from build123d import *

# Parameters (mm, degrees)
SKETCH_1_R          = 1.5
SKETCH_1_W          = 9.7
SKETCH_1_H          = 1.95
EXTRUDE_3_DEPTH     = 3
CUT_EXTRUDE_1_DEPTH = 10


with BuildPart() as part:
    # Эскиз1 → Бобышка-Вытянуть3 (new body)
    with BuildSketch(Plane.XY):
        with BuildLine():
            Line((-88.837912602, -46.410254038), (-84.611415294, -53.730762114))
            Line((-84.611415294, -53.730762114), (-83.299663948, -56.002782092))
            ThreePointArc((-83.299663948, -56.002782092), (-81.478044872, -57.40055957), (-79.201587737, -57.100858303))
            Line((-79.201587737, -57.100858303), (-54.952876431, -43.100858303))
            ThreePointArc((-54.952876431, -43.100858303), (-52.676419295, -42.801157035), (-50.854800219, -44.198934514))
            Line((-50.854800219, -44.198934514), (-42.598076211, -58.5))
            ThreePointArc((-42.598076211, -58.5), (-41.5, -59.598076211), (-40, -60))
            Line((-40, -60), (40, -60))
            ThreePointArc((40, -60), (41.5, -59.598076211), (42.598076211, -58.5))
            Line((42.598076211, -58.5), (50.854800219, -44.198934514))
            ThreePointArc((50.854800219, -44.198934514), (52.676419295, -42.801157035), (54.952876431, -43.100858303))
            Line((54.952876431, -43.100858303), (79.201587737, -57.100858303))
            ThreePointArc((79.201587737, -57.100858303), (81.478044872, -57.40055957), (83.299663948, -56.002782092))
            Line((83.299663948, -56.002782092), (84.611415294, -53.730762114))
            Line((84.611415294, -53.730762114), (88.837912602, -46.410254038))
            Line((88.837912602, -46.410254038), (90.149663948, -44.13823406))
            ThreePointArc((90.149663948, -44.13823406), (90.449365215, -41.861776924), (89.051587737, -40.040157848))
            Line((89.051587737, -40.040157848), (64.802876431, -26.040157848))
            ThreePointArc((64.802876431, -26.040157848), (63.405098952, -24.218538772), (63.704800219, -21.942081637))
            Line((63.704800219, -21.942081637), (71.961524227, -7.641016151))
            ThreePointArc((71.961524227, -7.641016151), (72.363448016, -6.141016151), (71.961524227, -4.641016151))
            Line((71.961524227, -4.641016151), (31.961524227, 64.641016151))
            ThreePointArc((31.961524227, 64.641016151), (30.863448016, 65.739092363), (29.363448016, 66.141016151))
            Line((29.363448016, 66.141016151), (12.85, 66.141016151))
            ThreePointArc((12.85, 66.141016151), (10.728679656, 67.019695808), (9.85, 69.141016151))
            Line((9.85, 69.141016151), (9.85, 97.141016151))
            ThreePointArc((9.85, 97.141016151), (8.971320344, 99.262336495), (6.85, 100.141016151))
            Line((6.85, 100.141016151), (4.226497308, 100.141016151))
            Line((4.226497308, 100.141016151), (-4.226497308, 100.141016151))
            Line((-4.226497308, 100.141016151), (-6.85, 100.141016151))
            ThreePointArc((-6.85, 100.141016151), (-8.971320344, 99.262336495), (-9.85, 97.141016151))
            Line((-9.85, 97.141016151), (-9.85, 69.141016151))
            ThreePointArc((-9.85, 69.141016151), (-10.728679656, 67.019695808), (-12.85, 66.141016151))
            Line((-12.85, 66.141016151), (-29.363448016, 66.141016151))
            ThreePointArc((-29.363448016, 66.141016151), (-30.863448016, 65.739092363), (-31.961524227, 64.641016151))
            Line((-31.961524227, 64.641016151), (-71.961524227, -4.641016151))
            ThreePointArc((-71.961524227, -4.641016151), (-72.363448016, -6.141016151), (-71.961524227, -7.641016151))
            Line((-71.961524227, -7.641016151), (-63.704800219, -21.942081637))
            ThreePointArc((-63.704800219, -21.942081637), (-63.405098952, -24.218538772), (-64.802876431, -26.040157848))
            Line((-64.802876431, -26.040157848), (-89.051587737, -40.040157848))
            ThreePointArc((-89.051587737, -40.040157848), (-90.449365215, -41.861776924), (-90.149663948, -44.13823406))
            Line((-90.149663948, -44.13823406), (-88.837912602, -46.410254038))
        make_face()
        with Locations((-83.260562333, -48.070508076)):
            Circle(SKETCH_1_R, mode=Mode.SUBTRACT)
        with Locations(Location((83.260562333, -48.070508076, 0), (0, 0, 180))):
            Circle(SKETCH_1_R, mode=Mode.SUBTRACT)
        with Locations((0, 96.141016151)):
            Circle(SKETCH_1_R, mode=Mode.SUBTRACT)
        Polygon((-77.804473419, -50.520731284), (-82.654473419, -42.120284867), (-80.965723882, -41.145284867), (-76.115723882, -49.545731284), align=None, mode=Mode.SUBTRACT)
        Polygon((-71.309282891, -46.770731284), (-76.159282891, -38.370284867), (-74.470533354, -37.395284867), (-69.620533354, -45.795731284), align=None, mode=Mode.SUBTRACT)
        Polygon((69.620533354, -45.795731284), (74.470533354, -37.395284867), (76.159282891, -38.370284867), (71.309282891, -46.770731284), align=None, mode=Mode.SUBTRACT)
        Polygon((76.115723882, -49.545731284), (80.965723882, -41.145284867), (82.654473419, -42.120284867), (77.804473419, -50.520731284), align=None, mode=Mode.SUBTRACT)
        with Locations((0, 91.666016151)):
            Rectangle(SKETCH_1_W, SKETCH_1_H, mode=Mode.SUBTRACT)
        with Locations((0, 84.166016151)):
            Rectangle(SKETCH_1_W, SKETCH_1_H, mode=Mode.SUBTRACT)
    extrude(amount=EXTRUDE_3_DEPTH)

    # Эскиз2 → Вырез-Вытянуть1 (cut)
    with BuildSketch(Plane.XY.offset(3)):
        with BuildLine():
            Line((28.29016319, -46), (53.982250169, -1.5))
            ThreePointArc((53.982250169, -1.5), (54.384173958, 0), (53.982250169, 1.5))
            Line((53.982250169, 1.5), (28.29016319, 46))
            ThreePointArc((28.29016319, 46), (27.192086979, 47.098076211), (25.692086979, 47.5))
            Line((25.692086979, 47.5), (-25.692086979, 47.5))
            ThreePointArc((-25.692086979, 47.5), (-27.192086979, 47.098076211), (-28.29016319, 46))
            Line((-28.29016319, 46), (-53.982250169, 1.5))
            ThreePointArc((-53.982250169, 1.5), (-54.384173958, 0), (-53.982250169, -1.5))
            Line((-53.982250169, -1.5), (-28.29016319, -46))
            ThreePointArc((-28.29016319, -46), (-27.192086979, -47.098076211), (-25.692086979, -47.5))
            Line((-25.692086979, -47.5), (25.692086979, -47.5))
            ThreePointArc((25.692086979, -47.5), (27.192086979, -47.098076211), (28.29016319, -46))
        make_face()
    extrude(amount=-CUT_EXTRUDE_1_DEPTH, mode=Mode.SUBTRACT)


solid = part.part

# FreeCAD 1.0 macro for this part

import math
import FreeCAD as App
import Part
import Sketcher
from FreeCAD import Vector
Q = App.Units.Quantity

doc = App.newDocument("Part")
params = doc.addObject("Spreadsheet::Sheet", "Params")
for row, (alias, value) in enumerate([
    ("sketch1_diameter", "3 mm"),
    ("sketch1_radius", "3 mm"),
    ("sketch1_width", "80 mm"),
    ("sketch1_height", "28 mm"),
    ("sketch1_length", "28 mm"),
    ("pad1_length", "3 mm"),
    ("sketch2_radius", "3 mm"),
    ("pocket1_length", "10 mm"),
], start=1):
    params.set(f"A{row}", alias)
    params.set(f"B{row}", "=" + value)
    params.setAlias(f"B{row}", alias)

body = doc.addObject("PartDesign::Body", "Body")

# Sketch on XY plane
sketch1 = body.newObject("Sketcher::SketchObject", "Sketch")
sketch1.AttachmentSupport = (doc.getObject("XY_Plane"), [""])
sketch1.MapMode = "FlatFace"
sketch1.addGeometry([
    Part.LineSegment(Vector(-88.8, -46.4, 0), Vector(-84.6, -53.7, 0)),  # 0
    Part.LineSegment(Vector(-84.6, -53.7, 0), Vector(-83.3, -56, 0)),  # 1
    Part.ArcOfCircle(Part.Circle(Vector(-80.7, -54.5, 0), Vector(0, 0, 1), 3), math.radians(-150), math.radians(-60)),  # 2
    Part.LineSegment(Vector(-79.2, -57.1, 0), Vector(-55, -43.1, 0)),  # 3
    Part.ArcOfCircle(Part.Circle(Vector(-53.5, -45.7, 0), Vector(0, 0, 1), 3), math.radians(30), math.radians(120)),  # 4
    Part.LineSegment(Vector(-50.9, -44.2, 0), Vector(-42.6, -58.5, 0)),  # 5
    Part.ArcOfCircle(Part.Circle(Vector(-40, -57, 0), Vector(0, 0, 1), 3), math.radians(-150), math.radians(-90)),  # 6
    Part.LineSegment(Vector(-40, -60, 0), Vector(40, -60, 0)),  # 7
    Part.ArcOfCircle(Part.Circle(Vector(40, -57, 0), Vector(0, 0, 1), 3), math.radians(-90), math.radians(-30)),  # 8
    Part.LineSegment(Vector(42.6, -58.5, 0), Vector(50.9, -44.2, 0)),  # 9
    Part.ArcOfCircle(Part.Circle(Vector(53.5, -45.7, 0), Vector(0, 0, 1), 3), math.radians(60), math.radians(150)),  # 10
    Part.LineSegment(Vector(55, -43.1, 0), Vector(79.2, -57.1, 0)),  # 11
    Part.ArcOfCircle(Part.Circle(Vector(80.7, -54.5, 0), Vector(0, 0, 1), 3), math.radians(-120), math.radians(-30)),  # 12
    Part.LineSegment(Vector(83.3, -56, 0), Vector(84.6, -53.7, 0)),  # 13
    Part.LineSegment(Vector(84.6, -53.7, 0), Vector(88.8, -46.4, 0)),  # 14
    Part.LineSegment(Vector(88.8, -46.4, 0), Vector(90.1, -44.1, 0)),  # 15
    Part.ArcOfCircle(Part.Circle(Vector(87.6, -42.6, 0), Vector(0, 0, 1), 3), math.radians(-30), math.radians(60)),  # 16
    Part.LineSegment(Vector(89.1, -40, 0), Vector(64.8, -26, 0)),  # 17
    Part.ArcOfCircle(Part.Circle(Vector(66.3, -23.4, 0), Vector(0, 0, 1), 3), math.radians(150), math.radians(240)),  # 18
    Part.LineSegment(Vector(63.7, -21.9, 0), Vector(72, -7.6, 0)),  # 19
    Part.ArcOfCircle(Part.Circle(Vector(69.4, -6.1, 0), Vector(0, 0, 1), 3), math.radians(-30), math.radians(30)),  # 20
    Part.LineSegment(Vector(72, -4.6, 0), Vector(32, 64.6, 0)),  # 21
    Part.ArcOfCircle(Part.Circle(Vector(29.4, 63.1, 0), Vector(0, 0, 1), 3), math.radians(30), math.radians(90)),  # 22
    Part.LineSegment(Vector(29.4, 66.1, 0), Vector(12.8, 66.1, 0)),  # 23
    Part.ArcOfCircle(Part.Circle(Vector(12.8, 69.1, 0), Vector(0, 0, 1), 3), math.radians(180), math.radians(270)),  # 24
    Part.LineSegment(Vector(9.8, 69.1, 0), Vector(9.8, 97.1, 0)),  # 25
    Part.ArcOfCircle(Part.Circle(Vector(6.9, 97.1, 0), Vector(0, 0, 1), 3), math.radians(0), math.radians(90)),  # 26
    Part.LineSegment(Vector(6.8, 100.1, 0), Vector(-6.8, 100.1, 0)),  # 27
    Part.ArcOfCircle(Part.Circle(Vector(-6.9, 97.1, 0), Vector(0, 0, 1), 3), math.radians(90), math.radians(180)),  # 28
    Part.LineSegment(Vector(-9.8, 97.1, 0), Vector(-9.8, 69.1, 0)),  # 29
    Part.ArcOfCircle(Part.Circle(Vector(-12.8, 69.1, 0), Vector(0, 0, 1), 3), math.radians(-90), math.radians(0)),  # 30
    Part.LineSegment(Vector(-12.8, 66.1, 0), Vector(-29.4, 66.1, 0)),  # 31
    Part.ArcOfCircle(Part.Circle(Vector(-29.4, 63.1, 0), Vector(0, 0, 1), 3), math.radians(90), math.radians(150)),  # 32
    Part.LineSegment(Vector(-32, 64.6, 0), Vector(-72, -4.6, 0)),  # 33
    Part.ArcOfCircle(Part.Circle(Vector(-69.4, -6.1, 0), Vector(0, 0, 1), 3), math.radians(150), math.radians(210)),  # 34
    Part.LineSegment(Vector(-72, -7.6, 0), Vector(-63.7, -21.9, 0)),  # 35
    Part.ArcOfCircle(Part.Circle(Vector(-66.3, -23.4, 0), Vector(0, 0, 1), 3), math.radians(-60), math.radians(30)),  # 36
    Part.LineSegment(Vector(-64.8, -26, 0), Vector(-89.1, -40, 0)),  # 37
    Part.ArcOfCircle(Part.Circle(Vector(-87.6, -42.6, 0), Vector(0, 0, 1), 3), math.radians(120), math.radians(210)),  # 38
    Part.LineSegment(Vector(-90.1, -44.1, 0), Vector(-88.8, -46.4, 0)),  # 39
    Part.Circle(Vector(-83.3, -48.1, 0), Vector(0, 0, 1), 1.5),  # 40
    Part.LineSegment(Vector(-76.1, -49.5, 0), Vector(-77.8, -50.5, 0)),  # 41
    Part.LineSegment(Vector(-77.8, -50.5, 0), Vector(-82.7, -42.1, 0)),  # 42
    Part.LineSegment(Vector(-82.7, -42.1, 0), Vector(-81, -41.1, 0)),  # 43
    Part.LineSegment(Vector(-81, -41.1, 0), Vector(-76.1, -49.5, 0)),  # 44
    Part.LineSegment(Vector(-69.6, -45.8, 0), Vector(-71.3, -46.8, 0)),  # 45
    Part.LineSegment(Vector(-71.3, -46.8, 0), Vector(-76.2, -38.4, 0)),  # 46
    Part.LineSegment(Vector(-76.2, -38.4, 0), Vector(-74.5, -37.4, 0)),  # 47
    Part.LineSegment(Vector(-74.5, -37.4, 0), Vector(-69.6, -45.8, 0)),  # 48
    Part.LineSegment(Vector(71.3, -46.8, 0), Vector(69.6, -45.8, 0)),  # 49
    Part.LineSegment(Vector(69.6, -45.8, 0), Vector(74.5, -37.4, 0)),  # 50
    Part.LineSegment(Vector(74.5, -37.4, 0), Vector(76.2, -38.4, 0)),  # 51
    Part.LineSegment(Vector(76.2, -38.4, 0), Vector(71.3, -46.8, 0)),  # 52
    Part.Circle(Vector(83.3, -48.1, 0), Vector(0, 0, 1), 1.5),  # 53
    Part.LineSegment(Vector(77.8, -50.5, 0), Vector(76.1, -49.5, 0)),  # 54
    Part.LineSegment(Vector(76.1, -49.5, 0), Vector(81, -41.1, 0)),  # 55
    Part.LineSegment(Vector(81, -41.1, 0), Vector(82.7, -42.1, 0)),  # 56
    Part.LineSegment(Vector(82.7, -42.1, 0), Vector(77.8, -50.5, 0)),  # 57
    Part.LineSegment(Vector(4.8, 83.2, 0), Vector(-4.8, 83.2, 0)),  # 58
    Part.LineSegment(Vector(-4.8, 83.2, 0), Vector(-4.8, 85.1, 0)),  # 59
    Part.LineSegment(Vector(-4.8, 85.1, 0), Vector(4.8, 85.1, 0)),  # 60
    Part.LineSegment(Vector(4.8, 85.1, 0), Vector(4.8, 83.2, 0)),  # 61
    Part.LineSegment(Vector(4.8, 90.7, 0), Vector(-4.8, 90.7, 0)),  # 62
    Part.LineSegment(Vector(-4.8, 90.7, 0), Vector(-4.8, 92.6, 0)),  # 63
    Part.LineSegment(Vector(-4.8, 92.6, 0), Vector(4.8, 92.6, 0)),  # 64
    Part.LineSegment(Vector(4.8, 92.6, 0), Vector(4.8, 90.7, 0)),  # 65
    Part.Circle(Vector(0, 96.1, 0), Vector(0, 0, 1), 1.5),  # 66
], False)
sketch1.addConstraint([
    Sketcher.Constraint("Coincident", 0, 2, 1, 1),
    Sketcher.Constraint("Tangent", 1, 2, 2, 1),
    Sketcher.Constraint("Tangent", 2, 2, 3, 1),
    Sketcher.Constraint("Tangent", 3, 2, 4, 2),
    Sketcher.Constraint("Tangent", 4, 1, 5, 1),
    Sketcher.Constraint("Tangent", 5, 2, 6, 1),
    Sketcher.Constraint("Tangent", 6, 2, 7, 1),
    Sketcher.Constraint("Tangent", 7, 2, 8, 1),
    Sketcher.Constraint("Tangent", 8, 2, 9, 1),
    Sketcher.Constraint("Tangent", 9, 2, 10, 2),
    Sketcher.Constraint("Tangent", 10, 1, 11, 1),
    Sketcher.Constraint("Tangent", 11, 2, 12, 1),
    Sketcher.Constraint("Tangent", 12, 2, 13, 1),
    Sketcher.Constraint("Coincident", 13, 2, 14, 1),
    Sketcher.Constraint("Coincident", 14, 2, 15, 1),
    Sketcher.Constraint("Tangent", 15, 2, 16, 1),
    Sketcher.Constraint("Tangent", 16, 2, 17, 1),
    Sketcher.Constraint("Tangent", 17, 2, 18, 2),
    Sketcher.Constraint("Tangent", 18, 1, 19, 1),
    Sketcher.Constraint("Tangent", 19, 2, 20, 1),
    Sketcher.Constraint("Tangent", 20, 2, 21, 1),
    Sketcher.Constraint("Tangent", 21, 2, 22, 1),
    Sketcher.Constraint("Tangent", 22, 2, 23, 1),
    Sketcher.Constraint("Tangent", 23, 2, 24, 2),
    Sketcher.Constraint("Tangent", 24, 1, 25, 1),
    Sketcher.Constraint("Tangent", 25, 2, 26, 1),
    Sketcher.Constraint("Tangent", 26, 2, 27, 1),
    Sketcher.Constraint("Tangent", 27, 2, 28, 1),
    Sketcher.Constraint("Tangent", 28, 2, 29, 1),
    Sketcher.Constraint("Tangent", 29, 2, 30, 2),
    Sketcher.Constraint("Tangent", 30, 1, 31, 1),
    Sketcher.Constraint("Tangent", 31, 2, 32, 1),
    Sketcher.Constraint("Tangent", 32, 2, 33, 1),
    Sketcher.Constraint("Tangent", 33, 2, 34, 1),
    Sketcher.Constraint("Tangent", 34, 2, 35, 1),
    Sketcher.Constraint("Tangent", 35, 2, 36, 2),
    Sketcher.Constraint("Tangent", 36, 1, 37, 1),
    Sketcher.Constraint("Tangent", 37, 2, 38, 1),
    Sketcher.Constraint("Tangent", 38, 2, 39, 1),
    Sketcher.Constraint("Coincident", 39, 2, 0, 1),
    Sketcher.Constraint("Coincident", 41, 2, 42, 1),
    Sketcher.Constraint("Coincident", 42, 2, 43, 1),
    Sketcher.Constraint("Coincident", 43, 2, 44, 1),
    Sketcher.Constraint("Coincident", 44, 2, 41, 1),
    Sketcher.Constraint("Coincident", 45, 2, 46, 1),
    Sketcher.Constraint("Coincident", 46, 2, 47, 1),
    Sketcher.Constraint("Coincident", 47, 2, 48, 1),
    Sketcher.Constraint("Coincident", 48, 2, 45, 1),
    Sketcher.Constraint("Coincident", 49, 2, 50, 1),
    Sketcher.Constraint("Coincident", 50, 2, 51, 1),
    Sketcher.Constraint("Coincident", 51, 2, 52, 1),
    Sketcher.Constraint("Coincident", 52, 2, 49, 1),
    Sketcher.Constraint("Coincident", 54, 2, 55, 1),
    Sketcher.Constraint("Coincident", 55, 2, 56, 1),
    Sketcher.Constraint("Coincident", 56, 2, 57, 1),
    Sketcher.Constraint("Coincident", 57, 2, 54, 1),
    Sketcher.Constraint("Coincident", 58, 2, 59, 1),
    Sketcher.Constraint("Coincident", 59, 2, 60, 1),
    Sketcher.Constraint("Coincident", 60, 2, 61, 1),
    Sketcher.Constraint("Coincident", 61, 2, 58, 1),
    Sketcher.Constraint("Coincident", 62, 2, 63, 1),
    Sketcher.Constraint("Coincident", 63, 2, 64, 1),
    Sketcher.Constraint("Coincident", 64, 2, 65, 1),
    Sketcher.Constraint("Coincident", 65, 2, 62, 1),
    Sketcher.Constraint("Horizontal", 7),
    Sketcher.Constraint("Horizontal", 23),
    Sketcher.Constraint("Vertical", 25),
    Sketcher.Constraint("Horizontal", 27),
    Sketcher.Constraint("Vertical", 29),
    Sketcher.Constraint("Horizontal", 31),
    Sketcher.Constraint("Horizontal", 58),
    Sketcher.Constraint("Vertical", 59),
    Sketcher.Constraint("Horizontal", 60),
    Sketcher.Constraint("Vertical", 61),
    Sketcher.Constraint("Horizontal", 62),
    Sketcher.Constraint("Vertical", 63),
    Sketcher.Constraint("Horizontal", 64),
    Sketcher.Constraint("Vertical", 65),
    Sketcher.Constraint("Equal", 2, 4),
    Sketcher.Constraint("Equal", 4, 6),
    Sketcher.Constraint("Equal", 6, 8),
    Sketcher.Constraint("Equal", 8, 10),
    Sketcher.Constraint("Equal", 10, 12),
    Sketcher.Constraint("Equal", 12, 16),
    Sketcher.Constraint("Equal", 16, 18),
    Sketcher.Constraint("Equal", 18, 20),
    Sketcher.Constraint("Equal", 20, 22),
    Sketcher.Constraint("Equal", 22, 24),
    Sketcher.Constraint("Equal", 24, 26),
    Sketcher.Constraint("Equal", 26, 28),
    Sketcher.Constraint("Equal", 28, 30),
    Sketcher.Constraint("Equal", 30, 32),
    Sketcher.Constraint("Equal", 32, 34),
    Sketcher.Constraint("Equal", 34, 36),
    Sketcher.Constraint("Equal", 36, 38),
    Sketcher.Constraint("Equal", 40, 53),
    Sketcher.Constraint("Equal", 53, 66),
    Sketcher.Constraint("Symmetric", 4, 3, 10, 3, -2),
    Sketcher.Constraint("Symmetric", 2, 3, 12, 3, -2),
    Sketcher.Constraint("Symmetric", 24, 3, 30, 3, -2),
    Sketcher.Constraint("Symmetric", 20, 3, 34, 3, -2),
    Sketcher.Constraint("Symmetric", 18, 3, 36, 3, -2),
    Sketcher.Constraint("Symmetric", 16, 3, 38, 3, -2),
    Sketcher.Constraint("Symmetric", 40, 3, 53, 3, -2),
    Sketcher.Constraint("Symmetric", 0, 2, 13, 2, -2),
    Sketcher.Constraint("Symmetric", 14, 2, 39, 2, -2),
    Sketcher.Constraint("Symmetric", 48, 2, 49, 2, -2),
    Sketcher.Constraint("Symmetric", 47, 2, 50, 2, -2),
    Sketcher.Constraint("Symmetric", 46, 2, 51, 2, -2),
    Sketcher.Constraint("Symmetric", 45, 2, 52, 2, -2),
    Sketcher.Constraint("Symmetric", 44, 2, 54, 2, -2),
    Sketcher.Constraint("Symmetric", 43, 2, 55, 2, -2),
    Sketcher.Constraint("Symmetric", 42, 2, 56, 2, -2),
    Sketcher.Constraint("Symmetric", 41, 2, 57, 2, -2),
    Sketcher.Constraint("PointOnObject", 66, 3, -2),
    Sketcher.Constraint("Parallel", 0, 1),
    Sketcher.Constraint("Perpendicular", 1, 3),
    Sketcher.Constraint("Perpendicular", 3, 5),
    Sketcher.Constraint("Perpendicular", 9, 11),
    Sketcher.Constraint("Parallel", 14, 15),
    Sketcher.Constraint("Perpendicular", 15, 17),
    Sketcher.Constraint("Perpendicular", 17, 19),
    Sketcher.Constraint("Parallel", 5, 21),
    Sketcher.Constraint("Parallel", 19, 33),
    Sketcher.Constraint("Perpendicular", 39, 41),
    Sketcher.Constraint("Perpendicular", 41, 42),
    Sketcher.Constraint("Perpendicular", 42, 43),
    Sketcher.Constraint("Perpendicular", 43, 44),
    Sketcher.Constraint("Perpendicular", 44, 45),
    Sketcher.Constraint("Perpendicular", 45, 46),
    Sketcher.Constraint("Perpendicular", 46, 47),
    Sketcher.Constraint("Perpendicular", 47, 48),
    Sketcher.Constraint("Vertical", 59, 2, 62, 2),
    Sketcher.Constraint("Vertical", 61, 2, 64, 2),
    Sketcher.Constraint("Equal", 61, 63),
    Sketcher.Constraint("Equal", 13, 15),
    Sketcher.Constraint("Equal", 11, 17),
    Sketcher.Constraint("Equal", 9, 19),
    Sketcher.Constraint("Equal", 43, 45),
    Sketcher.Constraint("Equal", 44, 46),
    Sketcher.Constraint("Diameter", 40, Q("3 mm")),
    Sketcher.Constraint("Radius", 2, Q("3 mm")),
    Sketcher.Constraint("DistanceX", 7, 1, 7, 2, Q("80 mm")),
    Sketcher.Constraint("DistanceY", 25, 1, 25, 2, Q("28 mm")),
    Sketcher.Constraint("Angle", 0, Q("-60 deg")),
    Sketcher.Constraint("Distance", 3, Q("28 mm")),
    Sketcher.Constraint("Distance", 21, Q("80 mm")),
    Sketcher.Constraint("DistanceX", 27, 2, 27, 1, Q("13.7 mm")),
    Sketcher.Constraint("DistanceX", 58, 2, 58, 1, Q("9.7 mm")),
    Sketcher.Constraint("DistanceY", 6, 3, -1, 1, Q("57 mm")),
    Sketcher.Constraint("Distance", 42, Q("9.7 mm")),
    Sketcher.Constraint("DistanceY", 59, 1, 59, 2, Q("1.95 mm")),
    Sketcher.Constraint("Distance", 41, Q("1.95 mm")),
    Sketcher.Constraint("DistanceX", 58, 2, -1, 1, Q("4.85 mm")),
    Sketcher.Constraint("DistanceX", 23, 2, 23, 1, Q("16.513448 mm")),
    Sketcher.Constraint("DistanceX", 4, 1, -1, 1, Q("50.8548 mm")),
    Sketcher.Constraint("DistanceY", 40, 3, -1, 1, Q("48.070508 mm")),
    Sketcher.Constraint("DistanceY", 41, 2, -1, 1, Q("50.520731 mm")),
    Sketcher.Constraint("DistanceY", 45, 2, -1, 1, Q("46.770731 mm")),
    Sketcher.Constraint("Distance", 0, Q("8.452995 mm")),
    Sketcher.Constraint("DistanceX", 40, 3, -1, 1, Q("83.260562 mm")),
    Sketcher.Constraint("DistanceY", -1, 1, 66, 3, Q("96.141016 mm")),
    Sketcher.Constraint("DistanceX", 41, 2, -1, 1, Q("77.804473 mm")),
    Sketcher.Constraint("DistanceX", 45, 2, -1, 1, Q("71.309283 mm")),
    Sketcher.Constraint("DistanceY", -1, 1, 58, 2, Q("83.191016 mm")),
    Sketcher.Constraint("DistanceY", -1, 1, 62, 2, Q("90.691016 mm")),
])
sketch1.setExpression("Constraints[140]", "Params.sketch1_diameter")
sketch1.setExpression("Constraints[141]", "Params.sketch1_radius")
sketch1.setExpression("Constraints[142]", "Params.sketch1_width")
sketch1.setExpression("Constraints[143]", "Params.sketch1_height")
sketch1.setExpression("Constraints[145]", "Params.sketch1_length")
pad1 = body.newObject("PartDesign::Pad", "Pad")
pad1.Profile = sketch1
pad1.setExpression("Length", "Params.pad1_length")

# Sketch on XY plane
sketch2 = body.newObject("Sketcher::SketchObject", "Sketch001")
sketch2.AttachmentSupport = (doc.getObject("XY_Plane"), [""])
sketch2.MapMode = "FlatFace"
sketch2.AttachmentOffset = App.Placement(Vector(0, 0, 3), App.Rotation())
sketch2.addGeometry([
    Part.LineSegment(Vector(28.3, -46, 0), Vector(54, -1.5, 0)),  # 0
    Part.ArcOfCircle(Part.Circle(Vector(51.4, 0, 0), Vector(0, 0, 1), 3), math.radians(-30), math.radians(30)),  # 1
    Part.LineSegment(Vector(54, 1.5, 0), Vector(28.3, 46, 0)),  # 2
    Part.ArcOfCircle(Part.Circle(Vector(25.7, 44.5, 0), Vector(0, 0, 1), 3), math.radians(30), math.radians(90)),  # 3
    Part.LineSegment(Vector(25.7, 47.5, 0), Vector(-25.7, 47.5, 0)),  # 4
    Part.ArcOfCircle(Part.Circle(Vector(-25.7, 44.5, 0), Vector(0, 0, 1), 3), math.radians(90), math.radians(150)),  # 5
    Part.LineSegment(Vector(-28.3, 46, 0), Vector(-54, 1.5, 0)),  # 6
    Part.ArcOfCircle(Part.Circle(Vector(-51.4, 0, 0), Vector(0, 0, 1), 3), math.radians(150), math.radians(210)),  # 7
    Part.LineSegment(Vector(-54, -1.5, 0), Vector(-28.3, -46, 0)),  # 8
    Part.ArcOfCircle(Part.Circle(Vector(-25.7, -44.5, 0), Vector(0, 0, 1), 3), math.radians(-150), math.radians(-90)),  # 9
    Part.LineSegment(Vector(-25.7, -47.5, 0), Vector(25.7, -47.5, 0)),  # 10
    Part.ArcOfCircle(Part.Circle(Vector(25.7, -44.5, 0), Vector(0, 0, 1), 3), math.radians(-90), math.radians(-30)),  # 11
], False)
sketch2.addConstraint([
    Sketcher.Constraint("Tangent", 0, 2, 1, 1),
    Sketcher.Constraint("Tangent", 1, 2, 2, 1),
    Sketcher.Constraint("Tangent", 2, 2, 3, 1),
    Sketcher.Constraint("Tangent", 3, 2, 4, 1),
    Sketcher.Constraint("Tangent", 4, 2, 5, 1),
    Sketcher.Constraint("Tangent", 5, 2, 6, 1),
    Sketcher.Constraint("Tangent", 6, 2, 7, 1),
    Sketcher.Constraint("Tangent", 7, 2, 8, 1),
    Sketcher.Constraint("Tangent", 8, 2, 9, 1),
    Sketcher.Constraint("Tangent", 9, 2, 10, 1),
    Sketcher.Constraint("Tangent", 10, 2, 11, 1),
    Sketcher.Constraint("Tangent", 11, 2, 0, 1),
    Sketcher.Constraint("Horizontal", 4),
    Sketcher.Constraint("Horizontal", 10),
    Sketcher.Constraint("Equal", 1, 3),
    Sketcher.Constraint("Equal", 3, 5),
    Sketcher.Constraint("Equal", 5, 7),
    Sketcher.Constraint("Equal", 7, 9),
    Sketcher.Constraint("Equal", 9, 11),
    Sketcher.Constraint("Symmetric", 1, 3, 7, 3, -1, 1),
    Sketcher.Constraint("Symmetric", 3, 3, 9, 3, -1, 1),
    Sketcher.Constraint("Symmetric", 2, 2, 5, 2, -2),
    Sketcher.Constraint("Parallel", 0, 6),
    Sketcher.Constraint("Radius", 1, Q("3 mm")),
    Sketcher.Constraint("Angle", 0, Q("60 deg")),
    Sketcher.Constraint("DistanceY", -1, 1, 2, 2, Q("46 mm")),
    Sketcher.Constraint("DistanceX", 4, 2, 4, 1, Q("51.384174 mm")),
])
sketch2.setExpression("Constraints[23]", "Params.sketch2_radius")
pocket1 = body.newObject("PartDesign::Pocket", "Pocket")
pocket1.Profile = sketch2
pocket1.setExpression("Length", "Params.pocket1_length")

doc.recompute()
